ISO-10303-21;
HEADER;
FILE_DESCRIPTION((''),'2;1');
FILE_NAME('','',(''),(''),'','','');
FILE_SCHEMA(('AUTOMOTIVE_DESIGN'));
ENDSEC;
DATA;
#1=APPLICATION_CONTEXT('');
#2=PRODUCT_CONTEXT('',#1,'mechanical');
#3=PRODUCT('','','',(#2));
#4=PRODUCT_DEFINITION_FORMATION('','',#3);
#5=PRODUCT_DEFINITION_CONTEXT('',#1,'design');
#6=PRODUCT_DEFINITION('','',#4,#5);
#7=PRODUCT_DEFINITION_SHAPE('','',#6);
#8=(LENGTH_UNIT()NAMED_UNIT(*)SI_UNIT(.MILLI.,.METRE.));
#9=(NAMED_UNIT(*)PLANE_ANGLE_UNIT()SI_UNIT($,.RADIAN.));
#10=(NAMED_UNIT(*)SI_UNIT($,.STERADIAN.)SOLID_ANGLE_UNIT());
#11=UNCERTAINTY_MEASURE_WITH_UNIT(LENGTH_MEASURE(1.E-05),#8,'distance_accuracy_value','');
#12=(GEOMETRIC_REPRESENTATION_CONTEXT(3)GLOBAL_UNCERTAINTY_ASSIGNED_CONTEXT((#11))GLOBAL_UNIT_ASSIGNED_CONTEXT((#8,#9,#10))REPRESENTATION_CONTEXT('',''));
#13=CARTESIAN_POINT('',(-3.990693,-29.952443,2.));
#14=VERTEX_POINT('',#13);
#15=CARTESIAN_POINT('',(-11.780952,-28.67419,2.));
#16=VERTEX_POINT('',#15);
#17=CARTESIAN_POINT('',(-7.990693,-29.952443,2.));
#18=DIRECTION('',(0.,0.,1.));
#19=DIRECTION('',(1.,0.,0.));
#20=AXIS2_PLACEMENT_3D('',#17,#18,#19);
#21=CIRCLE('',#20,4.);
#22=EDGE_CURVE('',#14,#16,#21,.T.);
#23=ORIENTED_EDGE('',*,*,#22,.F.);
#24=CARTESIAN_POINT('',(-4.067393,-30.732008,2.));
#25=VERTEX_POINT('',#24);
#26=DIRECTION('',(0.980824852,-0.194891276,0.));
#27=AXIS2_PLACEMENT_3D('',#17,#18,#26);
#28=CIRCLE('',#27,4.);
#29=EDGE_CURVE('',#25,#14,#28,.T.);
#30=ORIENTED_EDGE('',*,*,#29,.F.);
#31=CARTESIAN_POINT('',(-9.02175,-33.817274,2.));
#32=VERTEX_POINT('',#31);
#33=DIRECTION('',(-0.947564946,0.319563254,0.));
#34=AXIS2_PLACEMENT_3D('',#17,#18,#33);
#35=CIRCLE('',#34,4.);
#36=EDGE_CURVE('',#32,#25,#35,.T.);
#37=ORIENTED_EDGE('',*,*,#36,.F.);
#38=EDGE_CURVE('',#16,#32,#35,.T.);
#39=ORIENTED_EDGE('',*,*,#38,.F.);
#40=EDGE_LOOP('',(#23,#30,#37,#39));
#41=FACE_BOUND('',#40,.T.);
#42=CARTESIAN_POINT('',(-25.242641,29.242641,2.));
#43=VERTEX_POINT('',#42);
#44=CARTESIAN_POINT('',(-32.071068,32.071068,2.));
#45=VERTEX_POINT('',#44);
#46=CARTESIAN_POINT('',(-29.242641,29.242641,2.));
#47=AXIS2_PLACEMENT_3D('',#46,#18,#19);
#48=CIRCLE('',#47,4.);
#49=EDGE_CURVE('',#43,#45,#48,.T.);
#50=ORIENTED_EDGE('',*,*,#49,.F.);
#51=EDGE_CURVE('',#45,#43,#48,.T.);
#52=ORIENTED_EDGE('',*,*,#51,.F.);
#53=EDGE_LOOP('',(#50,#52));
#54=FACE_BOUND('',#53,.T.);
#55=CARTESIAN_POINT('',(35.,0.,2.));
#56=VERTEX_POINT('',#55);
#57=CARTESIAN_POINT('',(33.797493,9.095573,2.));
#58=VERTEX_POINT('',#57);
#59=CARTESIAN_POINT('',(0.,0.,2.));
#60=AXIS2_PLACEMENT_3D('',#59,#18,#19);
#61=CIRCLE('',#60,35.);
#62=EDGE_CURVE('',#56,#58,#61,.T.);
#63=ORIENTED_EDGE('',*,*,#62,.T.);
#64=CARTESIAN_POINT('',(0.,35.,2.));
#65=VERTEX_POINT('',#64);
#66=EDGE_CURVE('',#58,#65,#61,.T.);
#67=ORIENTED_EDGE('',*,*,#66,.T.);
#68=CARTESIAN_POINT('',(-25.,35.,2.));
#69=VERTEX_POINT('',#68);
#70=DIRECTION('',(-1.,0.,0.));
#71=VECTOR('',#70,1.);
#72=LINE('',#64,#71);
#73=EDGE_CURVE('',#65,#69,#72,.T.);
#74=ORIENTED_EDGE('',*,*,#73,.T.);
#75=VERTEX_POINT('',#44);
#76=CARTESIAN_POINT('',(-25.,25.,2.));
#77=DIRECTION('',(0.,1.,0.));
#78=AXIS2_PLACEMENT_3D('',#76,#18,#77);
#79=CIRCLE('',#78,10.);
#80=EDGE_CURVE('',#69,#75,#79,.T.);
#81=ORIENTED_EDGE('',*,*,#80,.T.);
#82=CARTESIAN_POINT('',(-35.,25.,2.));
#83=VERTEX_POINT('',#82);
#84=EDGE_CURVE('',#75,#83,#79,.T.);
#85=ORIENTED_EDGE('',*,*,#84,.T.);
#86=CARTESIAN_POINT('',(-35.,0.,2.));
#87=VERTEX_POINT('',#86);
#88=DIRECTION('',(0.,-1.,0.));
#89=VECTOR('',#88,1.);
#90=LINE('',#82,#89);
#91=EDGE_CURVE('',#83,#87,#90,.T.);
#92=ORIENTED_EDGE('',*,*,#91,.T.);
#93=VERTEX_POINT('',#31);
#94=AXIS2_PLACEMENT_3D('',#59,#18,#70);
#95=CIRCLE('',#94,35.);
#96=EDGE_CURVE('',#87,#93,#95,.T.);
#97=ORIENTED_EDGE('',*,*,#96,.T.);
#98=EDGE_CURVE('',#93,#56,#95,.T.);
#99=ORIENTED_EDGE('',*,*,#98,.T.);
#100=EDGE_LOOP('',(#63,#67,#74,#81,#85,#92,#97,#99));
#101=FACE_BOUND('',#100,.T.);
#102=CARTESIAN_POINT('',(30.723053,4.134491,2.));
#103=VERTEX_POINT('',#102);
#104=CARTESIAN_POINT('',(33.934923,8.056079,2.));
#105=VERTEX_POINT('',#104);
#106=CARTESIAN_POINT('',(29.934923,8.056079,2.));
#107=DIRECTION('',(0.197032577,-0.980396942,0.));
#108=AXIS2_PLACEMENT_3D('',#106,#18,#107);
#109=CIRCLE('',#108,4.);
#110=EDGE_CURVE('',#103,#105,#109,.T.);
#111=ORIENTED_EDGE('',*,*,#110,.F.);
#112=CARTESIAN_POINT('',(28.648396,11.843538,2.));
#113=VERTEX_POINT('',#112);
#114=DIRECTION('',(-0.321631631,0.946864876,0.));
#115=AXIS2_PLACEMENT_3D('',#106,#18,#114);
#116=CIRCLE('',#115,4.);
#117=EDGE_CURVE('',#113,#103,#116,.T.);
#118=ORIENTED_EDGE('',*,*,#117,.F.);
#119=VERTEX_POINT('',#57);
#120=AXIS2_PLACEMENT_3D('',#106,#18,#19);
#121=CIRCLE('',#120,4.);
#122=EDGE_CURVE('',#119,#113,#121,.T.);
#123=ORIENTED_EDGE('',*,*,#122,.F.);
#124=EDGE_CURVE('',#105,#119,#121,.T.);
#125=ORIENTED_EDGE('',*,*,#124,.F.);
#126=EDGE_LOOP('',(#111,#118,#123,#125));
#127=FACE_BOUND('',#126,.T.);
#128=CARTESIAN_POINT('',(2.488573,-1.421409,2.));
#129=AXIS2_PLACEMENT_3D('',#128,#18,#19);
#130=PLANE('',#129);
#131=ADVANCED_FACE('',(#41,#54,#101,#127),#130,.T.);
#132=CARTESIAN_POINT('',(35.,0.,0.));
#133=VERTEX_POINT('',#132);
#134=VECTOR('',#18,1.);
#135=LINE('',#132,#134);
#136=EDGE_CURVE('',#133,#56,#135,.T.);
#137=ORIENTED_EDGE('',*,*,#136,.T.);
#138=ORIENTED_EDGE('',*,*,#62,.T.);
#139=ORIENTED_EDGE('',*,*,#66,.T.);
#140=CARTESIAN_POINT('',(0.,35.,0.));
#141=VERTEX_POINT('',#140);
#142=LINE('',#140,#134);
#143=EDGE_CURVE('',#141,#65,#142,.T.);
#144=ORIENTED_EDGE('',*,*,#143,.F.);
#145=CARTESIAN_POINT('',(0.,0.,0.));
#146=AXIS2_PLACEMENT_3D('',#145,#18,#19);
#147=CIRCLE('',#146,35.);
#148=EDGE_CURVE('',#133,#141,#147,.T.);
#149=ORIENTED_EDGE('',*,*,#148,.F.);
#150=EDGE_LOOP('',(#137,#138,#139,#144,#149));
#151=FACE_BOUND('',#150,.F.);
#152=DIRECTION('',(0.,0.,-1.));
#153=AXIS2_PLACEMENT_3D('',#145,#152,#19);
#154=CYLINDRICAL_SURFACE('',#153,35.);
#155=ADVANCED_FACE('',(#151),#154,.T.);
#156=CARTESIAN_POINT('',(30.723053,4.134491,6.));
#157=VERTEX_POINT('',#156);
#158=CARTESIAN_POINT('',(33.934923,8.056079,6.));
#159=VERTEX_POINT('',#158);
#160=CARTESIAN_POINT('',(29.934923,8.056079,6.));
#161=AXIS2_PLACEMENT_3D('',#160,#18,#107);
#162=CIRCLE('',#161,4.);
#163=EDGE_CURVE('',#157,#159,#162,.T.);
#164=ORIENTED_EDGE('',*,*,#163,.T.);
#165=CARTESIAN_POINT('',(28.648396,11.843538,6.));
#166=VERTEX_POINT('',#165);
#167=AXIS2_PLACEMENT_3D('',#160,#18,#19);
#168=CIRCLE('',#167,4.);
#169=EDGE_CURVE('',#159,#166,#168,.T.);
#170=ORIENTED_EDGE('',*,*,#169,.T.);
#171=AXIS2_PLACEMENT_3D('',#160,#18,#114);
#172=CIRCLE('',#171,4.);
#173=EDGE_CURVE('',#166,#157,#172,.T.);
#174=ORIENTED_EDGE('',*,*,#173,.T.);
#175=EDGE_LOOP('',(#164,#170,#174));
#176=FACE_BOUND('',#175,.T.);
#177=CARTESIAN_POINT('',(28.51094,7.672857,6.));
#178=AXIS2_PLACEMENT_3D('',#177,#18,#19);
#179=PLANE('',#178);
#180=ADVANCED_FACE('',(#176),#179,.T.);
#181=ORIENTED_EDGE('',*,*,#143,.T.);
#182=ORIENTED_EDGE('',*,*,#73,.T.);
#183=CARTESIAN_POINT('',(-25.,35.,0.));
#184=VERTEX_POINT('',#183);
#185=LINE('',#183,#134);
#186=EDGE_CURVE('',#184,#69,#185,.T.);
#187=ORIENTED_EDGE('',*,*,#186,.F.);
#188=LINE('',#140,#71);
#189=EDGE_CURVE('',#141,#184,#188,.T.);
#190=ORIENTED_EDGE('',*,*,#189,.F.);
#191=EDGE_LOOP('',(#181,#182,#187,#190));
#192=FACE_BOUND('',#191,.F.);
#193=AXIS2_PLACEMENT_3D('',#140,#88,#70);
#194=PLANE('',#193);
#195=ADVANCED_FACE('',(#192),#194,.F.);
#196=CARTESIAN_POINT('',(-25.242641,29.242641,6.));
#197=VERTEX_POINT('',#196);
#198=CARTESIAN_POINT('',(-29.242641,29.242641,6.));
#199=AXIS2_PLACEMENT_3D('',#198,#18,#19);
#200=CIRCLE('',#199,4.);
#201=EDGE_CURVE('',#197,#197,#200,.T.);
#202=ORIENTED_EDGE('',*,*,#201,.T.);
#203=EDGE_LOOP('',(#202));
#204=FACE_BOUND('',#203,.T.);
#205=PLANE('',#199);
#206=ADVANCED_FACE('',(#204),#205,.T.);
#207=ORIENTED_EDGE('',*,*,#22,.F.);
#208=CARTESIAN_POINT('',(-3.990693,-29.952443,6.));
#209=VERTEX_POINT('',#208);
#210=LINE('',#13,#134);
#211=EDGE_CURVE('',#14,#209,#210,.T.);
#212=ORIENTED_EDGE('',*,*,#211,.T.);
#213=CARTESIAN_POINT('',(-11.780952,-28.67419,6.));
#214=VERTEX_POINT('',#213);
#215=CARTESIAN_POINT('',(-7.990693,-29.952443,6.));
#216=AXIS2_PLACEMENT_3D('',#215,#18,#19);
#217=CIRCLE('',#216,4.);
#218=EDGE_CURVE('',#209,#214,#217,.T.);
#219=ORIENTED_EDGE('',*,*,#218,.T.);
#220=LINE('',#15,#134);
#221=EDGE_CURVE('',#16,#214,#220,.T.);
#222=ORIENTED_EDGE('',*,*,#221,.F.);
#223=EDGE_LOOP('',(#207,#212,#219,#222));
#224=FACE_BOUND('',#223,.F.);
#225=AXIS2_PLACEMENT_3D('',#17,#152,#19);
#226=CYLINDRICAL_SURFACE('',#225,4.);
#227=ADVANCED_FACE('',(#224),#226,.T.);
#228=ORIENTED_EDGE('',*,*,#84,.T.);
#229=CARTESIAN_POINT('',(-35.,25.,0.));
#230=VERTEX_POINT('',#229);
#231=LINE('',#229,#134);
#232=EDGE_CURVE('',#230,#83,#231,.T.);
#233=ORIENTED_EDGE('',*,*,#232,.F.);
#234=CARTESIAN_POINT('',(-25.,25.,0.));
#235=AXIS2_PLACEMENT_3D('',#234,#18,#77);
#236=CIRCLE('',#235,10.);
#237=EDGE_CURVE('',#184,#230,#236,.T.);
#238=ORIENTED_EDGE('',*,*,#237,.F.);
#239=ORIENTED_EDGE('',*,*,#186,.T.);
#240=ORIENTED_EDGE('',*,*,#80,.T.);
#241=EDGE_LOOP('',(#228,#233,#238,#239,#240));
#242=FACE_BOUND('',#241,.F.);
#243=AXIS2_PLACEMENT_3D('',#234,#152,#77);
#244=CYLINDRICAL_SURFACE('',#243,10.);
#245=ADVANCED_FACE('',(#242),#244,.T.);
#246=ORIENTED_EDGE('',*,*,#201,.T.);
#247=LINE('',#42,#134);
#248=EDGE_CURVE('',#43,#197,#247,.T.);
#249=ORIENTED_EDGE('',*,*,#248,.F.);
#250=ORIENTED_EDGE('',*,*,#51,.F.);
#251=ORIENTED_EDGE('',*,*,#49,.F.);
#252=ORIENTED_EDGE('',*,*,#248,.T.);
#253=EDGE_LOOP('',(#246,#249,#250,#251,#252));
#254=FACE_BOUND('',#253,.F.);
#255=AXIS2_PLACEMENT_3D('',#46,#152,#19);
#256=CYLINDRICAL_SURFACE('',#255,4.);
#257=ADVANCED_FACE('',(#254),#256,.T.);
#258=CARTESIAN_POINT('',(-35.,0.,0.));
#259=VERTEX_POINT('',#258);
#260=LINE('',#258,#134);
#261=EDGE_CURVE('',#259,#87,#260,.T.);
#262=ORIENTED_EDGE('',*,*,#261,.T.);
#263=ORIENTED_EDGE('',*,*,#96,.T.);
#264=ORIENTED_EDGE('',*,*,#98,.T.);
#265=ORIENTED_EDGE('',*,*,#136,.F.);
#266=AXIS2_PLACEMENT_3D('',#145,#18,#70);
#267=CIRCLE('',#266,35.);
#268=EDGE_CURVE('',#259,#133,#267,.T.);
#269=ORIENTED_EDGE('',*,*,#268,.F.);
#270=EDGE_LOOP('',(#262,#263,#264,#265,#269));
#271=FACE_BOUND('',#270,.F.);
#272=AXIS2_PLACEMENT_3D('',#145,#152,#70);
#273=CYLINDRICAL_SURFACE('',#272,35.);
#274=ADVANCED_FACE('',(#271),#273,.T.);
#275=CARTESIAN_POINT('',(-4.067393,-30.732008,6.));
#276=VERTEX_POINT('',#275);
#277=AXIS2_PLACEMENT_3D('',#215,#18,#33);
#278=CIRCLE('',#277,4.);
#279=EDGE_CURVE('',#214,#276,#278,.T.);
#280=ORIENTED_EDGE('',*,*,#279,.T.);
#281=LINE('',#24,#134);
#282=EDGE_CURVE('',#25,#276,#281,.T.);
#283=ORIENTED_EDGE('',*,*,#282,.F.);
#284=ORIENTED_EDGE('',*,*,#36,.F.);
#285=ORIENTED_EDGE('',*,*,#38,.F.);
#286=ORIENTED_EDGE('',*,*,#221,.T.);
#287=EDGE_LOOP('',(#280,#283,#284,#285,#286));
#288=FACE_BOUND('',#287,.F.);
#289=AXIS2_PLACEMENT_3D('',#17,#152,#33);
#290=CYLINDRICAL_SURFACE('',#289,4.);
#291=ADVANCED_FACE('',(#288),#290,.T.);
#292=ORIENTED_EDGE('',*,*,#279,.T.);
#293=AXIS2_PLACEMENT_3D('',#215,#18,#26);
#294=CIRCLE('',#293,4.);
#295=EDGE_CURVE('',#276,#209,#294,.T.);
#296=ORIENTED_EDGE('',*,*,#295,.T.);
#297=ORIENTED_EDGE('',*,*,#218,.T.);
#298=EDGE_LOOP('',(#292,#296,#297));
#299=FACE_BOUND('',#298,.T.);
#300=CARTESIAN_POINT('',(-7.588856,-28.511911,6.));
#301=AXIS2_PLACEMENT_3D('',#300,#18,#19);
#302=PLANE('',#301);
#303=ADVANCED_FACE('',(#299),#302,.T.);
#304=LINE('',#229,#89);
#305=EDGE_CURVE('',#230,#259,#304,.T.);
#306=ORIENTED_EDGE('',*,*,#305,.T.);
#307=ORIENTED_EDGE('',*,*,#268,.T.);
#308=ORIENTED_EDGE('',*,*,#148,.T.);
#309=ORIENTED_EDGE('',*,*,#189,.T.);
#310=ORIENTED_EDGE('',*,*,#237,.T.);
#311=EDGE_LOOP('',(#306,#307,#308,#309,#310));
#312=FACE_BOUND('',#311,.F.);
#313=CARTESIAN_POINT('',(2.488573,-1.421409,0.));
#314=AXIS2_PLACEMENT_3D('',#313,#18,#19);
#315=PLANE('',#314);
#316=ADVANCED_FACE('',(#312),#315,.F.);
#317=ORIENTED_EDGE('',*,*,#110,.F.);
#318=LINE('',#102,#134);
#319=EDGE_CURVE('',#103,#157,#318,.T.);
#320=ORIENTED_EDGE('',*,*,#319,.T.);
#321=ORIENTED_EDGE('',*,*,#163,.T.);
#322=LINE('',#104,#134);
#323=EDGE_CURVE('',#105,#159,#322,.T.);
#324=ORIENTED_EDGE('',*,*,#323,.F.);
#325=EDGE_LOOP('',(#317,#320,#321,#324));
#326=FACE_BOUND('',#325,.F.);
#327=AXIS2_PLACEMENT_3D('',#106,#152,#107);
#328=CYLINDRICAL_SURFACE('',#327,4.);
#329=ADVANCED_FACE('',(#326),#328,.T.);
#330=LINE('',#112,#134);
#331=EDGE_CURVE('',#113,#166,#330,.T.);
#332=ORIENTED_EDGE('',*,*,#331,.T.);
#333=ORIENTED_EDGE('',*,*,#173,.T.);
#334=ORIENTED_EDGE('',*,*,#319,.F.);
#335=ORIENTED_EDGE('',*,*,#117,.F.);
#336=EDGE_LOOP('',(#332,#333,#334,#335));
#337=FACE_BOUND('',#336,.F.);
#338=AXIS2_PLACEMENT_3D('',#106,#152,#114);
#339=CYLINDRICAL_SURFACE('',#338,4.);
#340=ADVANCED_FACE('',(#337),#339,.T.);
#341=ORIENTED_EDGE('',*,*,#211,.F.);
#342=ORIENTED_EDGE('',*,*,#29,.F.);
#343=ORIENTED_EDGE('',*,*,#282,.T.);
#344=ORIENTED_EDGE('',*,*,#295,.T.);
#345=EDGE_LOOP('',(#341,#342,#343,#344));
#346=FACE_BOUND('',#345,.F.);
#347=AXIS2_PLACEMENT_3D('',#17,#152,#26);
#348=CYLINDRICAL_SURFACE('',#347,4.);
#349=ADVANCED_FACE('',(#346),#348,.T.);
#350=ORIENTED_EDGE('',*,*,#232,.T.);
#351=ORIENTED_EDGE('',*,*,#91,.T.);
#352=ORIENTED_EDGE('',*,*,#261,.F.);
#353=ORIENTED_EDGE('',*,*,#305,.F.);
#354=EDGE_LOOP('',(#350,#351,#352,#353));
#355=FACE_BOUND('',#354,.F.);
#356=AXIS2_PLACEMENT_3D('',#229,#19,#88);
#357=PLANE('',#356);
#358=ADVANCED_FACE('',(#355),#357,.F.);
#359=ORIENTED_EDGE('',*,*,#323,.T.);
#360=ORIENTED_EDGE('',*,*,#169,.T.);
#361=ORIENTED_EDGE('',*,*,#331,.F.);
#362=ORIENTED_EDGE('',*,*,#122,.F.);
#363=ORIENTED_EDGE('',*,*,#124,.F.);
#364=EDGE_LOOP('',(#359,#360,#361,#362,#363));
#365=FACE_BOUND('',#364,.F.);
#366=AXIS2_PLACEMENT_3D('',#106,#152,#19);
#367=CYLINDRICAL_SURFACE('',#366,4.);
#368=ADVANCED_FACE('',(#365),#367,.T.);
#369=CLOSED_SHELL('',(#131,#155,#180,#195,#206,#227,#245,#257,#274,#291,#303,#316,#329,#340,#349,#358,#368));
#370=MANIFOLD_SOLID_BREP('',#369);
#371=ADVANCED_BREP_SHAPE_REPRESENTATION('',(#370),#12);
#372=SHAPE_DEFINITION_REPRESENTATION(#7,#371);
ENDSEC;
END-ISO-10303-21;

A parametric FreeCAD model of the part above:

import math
import FreeCAD as App
import Part
import Sketcher

V = App.Vector

doc = App.newDocument("Part")
params = doc.addObject("Spreadsheet::Sheet", "Params")
for row, (alias, value) in enumerate([
    ("sketch1_radius", "35 mm"),
    ("sketch1_radius2", "10 mm"),
    ("pad1_length", "2 mm"),
    ("sketch2_diameter", "8 mm"),
    ("pad2_length", "4 mm"),
], start=1):
    params.set(f"A{row}", alias)
    params.set(f"B{row}", "=" + value)
    params.setAlias(f"B{row}", alias)

body = doc.addObject("PartDesign::Body", "Body")

sketch1 = body.newObject("Sketcher::SketchObject", "Sketch")
sketch1.AttachmentSupport = (doc.getObject("XY_Plane"), [""])
sketch1.MapMode = "FlatFace"
sketch1.addGeometry([
    Part.ArcOfCircle(Part.Circle(V(0, 0, 0), V(0, 0, 1), 35), math.radians(180), math.radians(360)),
    Part.ArcOfCircle(Part.Circle(V(0, 0, 0), V(0, 0, 1), 35), math.radians(0), math.radians(90)),
    Part.LineSegment(V(0, 35, 0), V(-25, 35, 0)),
    Part.ArcOfCircle(Part.Circle(V(-25, 25, 0), V(0, 0, 1), 10), math.radians(90), math.radians(180)),
    Part.LineSegment(V(-35, 25, 0), V(-35, 0, 0)),
], False)
sketch1.addConstraint([
    Sketcher.Constraint("Tangent", 0, 2, 1, 1),
    Sketcher.Constraint("Tangent", 1, 2, 2, 1),
    Sketcher.Constraint("Tangent", 2, 2, 3, 1),
    Sketcher.Constraint("Tangent", 3, 2, 4, 1),
    Sketcher.Constraint("Tangent", 4, 2, 0, 1),
    Sketcher.Constraint("Horizontal", 2),
    Sketcher.Constraint("Vertical", 4),
    Sketcher.Constraint("Coincident", 0, 3, -1, 1),
    Sketcher.Constraint("Equal", 0, 1),
    Sketcher.Constraint("PointOnObject", 0, 2, -1),
    Sketcher.Constraint("Radius", 0, 35.0),
    Sketcher.Constraint("Radius", 3, 10.0),
])
sketch1.setExpression("Constraints[10]", "Params.sketch1_radius")
sketch1.setExpression("Constraints[11]", "Params.sketch1_radius2")
pad1 = body.newObject("PartDesign::Pad", "Pad")
pad1.Profile = sketch1
pad1.setExpression("Length", "Params.pad1_length")

sketch2 = body.newObject("Sketcher::SketchObject", "Sketch001")
sketch2.AttachmentSupport = (doc.getObject("XY_Plane"), [""])
sketch2.MapMode = "FlatFace"
sketch2.AttachmentOffset = App.Placement(V(0, 0, 2), App.Rotation())
sketch2.addGeometry([
    Part.ArcOfCircle(Part.Circle(V(-8, -30, 0), V(0, 0, 1), 4), math.radians(0), math.radians(161)),
    Part.ArcOfCircle(Part.Circle(V(-8, -30, 0), V(0, 0, 1), 4), math.radians(161), math.radians(349)),
    Part.ArcOfCircle(Part.Circle(V(-8, -30, 0), V(0, 0, 1), 4), math.radians(-11.24), math.radians(0)),
    Part.ArcOfCircle(Part.Circle(V(29.9, 8.1, 0), V(0, 0, 1), 4), math.radians(109), math.radians(281)),
    Part.ArcOfCircle(Part.Circle(V(29.9, 8.1, 0), V(0, 0, 1), 4), math.radians(-79), math.radians(0)),
    Part.ArcOfCircle(Part.Circle(V(29.9, 8.1, 0), V(0, 0, 1), 4), math.radians(0), math.radians(109)),
    Part.Circle(V(-29.2, 29.2, 0), V(0, 0, 1), 4),
], False)
sketch2.addConstraint([
    Sketcher.Constraint("Tangent", 0, 2, 1, 1),
    Sketcher.Constraint("Tangent", 1, 2, 2, 1),
    Sketcher.Constraint("Tangent", 2, 2, 0, 1),
    Sketcher.Constraint("Tangent", 3, 2, 4, 1),
    Sketcher.Constraint("Tangent", 4, 2, 5, 1),
    Sketcher.Constraint("Tangent", 5, 2, 3, 1),
    Sketcher.Constraint("Equal", 2, 3),
    Sketcher.Constraint("Equal", 5, 6),
    Sketcher.Constraint("Horizontal", 1, 3, 2, 2),
    Sketcher.Constraint("Horizontal", 5, 3, 4, 2),
    Sketcher.Constraint("Diameter", 6, 8.0),
    Sketcher.Constraint("DistanceX", 2, 3, 1, 2, 3.923299),
    Sketcher.Constraint("DistanceY", 1, 2, 3, 2, 34.866499),
    Sketcher.Constraint("DistanceY", -1, 1, 3, 3, 8.056079),
    Sketcher.Constraint("DistanceX", 6, 3, -1, 1, 29.242641),
    Sketcher.Constraint("DistanceY", -1, 1, 6, 3, 29.242641),
    Sketcher.Constraint("DistanceY", 0, 2, -1, 1, 28.67419),
    Sketcher.Constraint("DistanceY", -1, 1, 3, 2, 4.134491),
    Sketcher.Constraint("DistanceY", -1, 1, 5, 2, 11.843538),
    Sketcher.Constraint("DistanceX", 6, 3, 0, 3, 21.251948),
    Sketcher.Constraint("DistanceX", -1, 1, 3, 3, 29.934923),
])
sketch2.setExpression("Constraints[10]", "Params.sketch2_diameter")
pad2 = body.newObject("PartDesign::Pad", "Pad001")
pad2.Profile = sketch2
pad2.setExpression("Length", "Params.pad2_length")

doc.recompute()
